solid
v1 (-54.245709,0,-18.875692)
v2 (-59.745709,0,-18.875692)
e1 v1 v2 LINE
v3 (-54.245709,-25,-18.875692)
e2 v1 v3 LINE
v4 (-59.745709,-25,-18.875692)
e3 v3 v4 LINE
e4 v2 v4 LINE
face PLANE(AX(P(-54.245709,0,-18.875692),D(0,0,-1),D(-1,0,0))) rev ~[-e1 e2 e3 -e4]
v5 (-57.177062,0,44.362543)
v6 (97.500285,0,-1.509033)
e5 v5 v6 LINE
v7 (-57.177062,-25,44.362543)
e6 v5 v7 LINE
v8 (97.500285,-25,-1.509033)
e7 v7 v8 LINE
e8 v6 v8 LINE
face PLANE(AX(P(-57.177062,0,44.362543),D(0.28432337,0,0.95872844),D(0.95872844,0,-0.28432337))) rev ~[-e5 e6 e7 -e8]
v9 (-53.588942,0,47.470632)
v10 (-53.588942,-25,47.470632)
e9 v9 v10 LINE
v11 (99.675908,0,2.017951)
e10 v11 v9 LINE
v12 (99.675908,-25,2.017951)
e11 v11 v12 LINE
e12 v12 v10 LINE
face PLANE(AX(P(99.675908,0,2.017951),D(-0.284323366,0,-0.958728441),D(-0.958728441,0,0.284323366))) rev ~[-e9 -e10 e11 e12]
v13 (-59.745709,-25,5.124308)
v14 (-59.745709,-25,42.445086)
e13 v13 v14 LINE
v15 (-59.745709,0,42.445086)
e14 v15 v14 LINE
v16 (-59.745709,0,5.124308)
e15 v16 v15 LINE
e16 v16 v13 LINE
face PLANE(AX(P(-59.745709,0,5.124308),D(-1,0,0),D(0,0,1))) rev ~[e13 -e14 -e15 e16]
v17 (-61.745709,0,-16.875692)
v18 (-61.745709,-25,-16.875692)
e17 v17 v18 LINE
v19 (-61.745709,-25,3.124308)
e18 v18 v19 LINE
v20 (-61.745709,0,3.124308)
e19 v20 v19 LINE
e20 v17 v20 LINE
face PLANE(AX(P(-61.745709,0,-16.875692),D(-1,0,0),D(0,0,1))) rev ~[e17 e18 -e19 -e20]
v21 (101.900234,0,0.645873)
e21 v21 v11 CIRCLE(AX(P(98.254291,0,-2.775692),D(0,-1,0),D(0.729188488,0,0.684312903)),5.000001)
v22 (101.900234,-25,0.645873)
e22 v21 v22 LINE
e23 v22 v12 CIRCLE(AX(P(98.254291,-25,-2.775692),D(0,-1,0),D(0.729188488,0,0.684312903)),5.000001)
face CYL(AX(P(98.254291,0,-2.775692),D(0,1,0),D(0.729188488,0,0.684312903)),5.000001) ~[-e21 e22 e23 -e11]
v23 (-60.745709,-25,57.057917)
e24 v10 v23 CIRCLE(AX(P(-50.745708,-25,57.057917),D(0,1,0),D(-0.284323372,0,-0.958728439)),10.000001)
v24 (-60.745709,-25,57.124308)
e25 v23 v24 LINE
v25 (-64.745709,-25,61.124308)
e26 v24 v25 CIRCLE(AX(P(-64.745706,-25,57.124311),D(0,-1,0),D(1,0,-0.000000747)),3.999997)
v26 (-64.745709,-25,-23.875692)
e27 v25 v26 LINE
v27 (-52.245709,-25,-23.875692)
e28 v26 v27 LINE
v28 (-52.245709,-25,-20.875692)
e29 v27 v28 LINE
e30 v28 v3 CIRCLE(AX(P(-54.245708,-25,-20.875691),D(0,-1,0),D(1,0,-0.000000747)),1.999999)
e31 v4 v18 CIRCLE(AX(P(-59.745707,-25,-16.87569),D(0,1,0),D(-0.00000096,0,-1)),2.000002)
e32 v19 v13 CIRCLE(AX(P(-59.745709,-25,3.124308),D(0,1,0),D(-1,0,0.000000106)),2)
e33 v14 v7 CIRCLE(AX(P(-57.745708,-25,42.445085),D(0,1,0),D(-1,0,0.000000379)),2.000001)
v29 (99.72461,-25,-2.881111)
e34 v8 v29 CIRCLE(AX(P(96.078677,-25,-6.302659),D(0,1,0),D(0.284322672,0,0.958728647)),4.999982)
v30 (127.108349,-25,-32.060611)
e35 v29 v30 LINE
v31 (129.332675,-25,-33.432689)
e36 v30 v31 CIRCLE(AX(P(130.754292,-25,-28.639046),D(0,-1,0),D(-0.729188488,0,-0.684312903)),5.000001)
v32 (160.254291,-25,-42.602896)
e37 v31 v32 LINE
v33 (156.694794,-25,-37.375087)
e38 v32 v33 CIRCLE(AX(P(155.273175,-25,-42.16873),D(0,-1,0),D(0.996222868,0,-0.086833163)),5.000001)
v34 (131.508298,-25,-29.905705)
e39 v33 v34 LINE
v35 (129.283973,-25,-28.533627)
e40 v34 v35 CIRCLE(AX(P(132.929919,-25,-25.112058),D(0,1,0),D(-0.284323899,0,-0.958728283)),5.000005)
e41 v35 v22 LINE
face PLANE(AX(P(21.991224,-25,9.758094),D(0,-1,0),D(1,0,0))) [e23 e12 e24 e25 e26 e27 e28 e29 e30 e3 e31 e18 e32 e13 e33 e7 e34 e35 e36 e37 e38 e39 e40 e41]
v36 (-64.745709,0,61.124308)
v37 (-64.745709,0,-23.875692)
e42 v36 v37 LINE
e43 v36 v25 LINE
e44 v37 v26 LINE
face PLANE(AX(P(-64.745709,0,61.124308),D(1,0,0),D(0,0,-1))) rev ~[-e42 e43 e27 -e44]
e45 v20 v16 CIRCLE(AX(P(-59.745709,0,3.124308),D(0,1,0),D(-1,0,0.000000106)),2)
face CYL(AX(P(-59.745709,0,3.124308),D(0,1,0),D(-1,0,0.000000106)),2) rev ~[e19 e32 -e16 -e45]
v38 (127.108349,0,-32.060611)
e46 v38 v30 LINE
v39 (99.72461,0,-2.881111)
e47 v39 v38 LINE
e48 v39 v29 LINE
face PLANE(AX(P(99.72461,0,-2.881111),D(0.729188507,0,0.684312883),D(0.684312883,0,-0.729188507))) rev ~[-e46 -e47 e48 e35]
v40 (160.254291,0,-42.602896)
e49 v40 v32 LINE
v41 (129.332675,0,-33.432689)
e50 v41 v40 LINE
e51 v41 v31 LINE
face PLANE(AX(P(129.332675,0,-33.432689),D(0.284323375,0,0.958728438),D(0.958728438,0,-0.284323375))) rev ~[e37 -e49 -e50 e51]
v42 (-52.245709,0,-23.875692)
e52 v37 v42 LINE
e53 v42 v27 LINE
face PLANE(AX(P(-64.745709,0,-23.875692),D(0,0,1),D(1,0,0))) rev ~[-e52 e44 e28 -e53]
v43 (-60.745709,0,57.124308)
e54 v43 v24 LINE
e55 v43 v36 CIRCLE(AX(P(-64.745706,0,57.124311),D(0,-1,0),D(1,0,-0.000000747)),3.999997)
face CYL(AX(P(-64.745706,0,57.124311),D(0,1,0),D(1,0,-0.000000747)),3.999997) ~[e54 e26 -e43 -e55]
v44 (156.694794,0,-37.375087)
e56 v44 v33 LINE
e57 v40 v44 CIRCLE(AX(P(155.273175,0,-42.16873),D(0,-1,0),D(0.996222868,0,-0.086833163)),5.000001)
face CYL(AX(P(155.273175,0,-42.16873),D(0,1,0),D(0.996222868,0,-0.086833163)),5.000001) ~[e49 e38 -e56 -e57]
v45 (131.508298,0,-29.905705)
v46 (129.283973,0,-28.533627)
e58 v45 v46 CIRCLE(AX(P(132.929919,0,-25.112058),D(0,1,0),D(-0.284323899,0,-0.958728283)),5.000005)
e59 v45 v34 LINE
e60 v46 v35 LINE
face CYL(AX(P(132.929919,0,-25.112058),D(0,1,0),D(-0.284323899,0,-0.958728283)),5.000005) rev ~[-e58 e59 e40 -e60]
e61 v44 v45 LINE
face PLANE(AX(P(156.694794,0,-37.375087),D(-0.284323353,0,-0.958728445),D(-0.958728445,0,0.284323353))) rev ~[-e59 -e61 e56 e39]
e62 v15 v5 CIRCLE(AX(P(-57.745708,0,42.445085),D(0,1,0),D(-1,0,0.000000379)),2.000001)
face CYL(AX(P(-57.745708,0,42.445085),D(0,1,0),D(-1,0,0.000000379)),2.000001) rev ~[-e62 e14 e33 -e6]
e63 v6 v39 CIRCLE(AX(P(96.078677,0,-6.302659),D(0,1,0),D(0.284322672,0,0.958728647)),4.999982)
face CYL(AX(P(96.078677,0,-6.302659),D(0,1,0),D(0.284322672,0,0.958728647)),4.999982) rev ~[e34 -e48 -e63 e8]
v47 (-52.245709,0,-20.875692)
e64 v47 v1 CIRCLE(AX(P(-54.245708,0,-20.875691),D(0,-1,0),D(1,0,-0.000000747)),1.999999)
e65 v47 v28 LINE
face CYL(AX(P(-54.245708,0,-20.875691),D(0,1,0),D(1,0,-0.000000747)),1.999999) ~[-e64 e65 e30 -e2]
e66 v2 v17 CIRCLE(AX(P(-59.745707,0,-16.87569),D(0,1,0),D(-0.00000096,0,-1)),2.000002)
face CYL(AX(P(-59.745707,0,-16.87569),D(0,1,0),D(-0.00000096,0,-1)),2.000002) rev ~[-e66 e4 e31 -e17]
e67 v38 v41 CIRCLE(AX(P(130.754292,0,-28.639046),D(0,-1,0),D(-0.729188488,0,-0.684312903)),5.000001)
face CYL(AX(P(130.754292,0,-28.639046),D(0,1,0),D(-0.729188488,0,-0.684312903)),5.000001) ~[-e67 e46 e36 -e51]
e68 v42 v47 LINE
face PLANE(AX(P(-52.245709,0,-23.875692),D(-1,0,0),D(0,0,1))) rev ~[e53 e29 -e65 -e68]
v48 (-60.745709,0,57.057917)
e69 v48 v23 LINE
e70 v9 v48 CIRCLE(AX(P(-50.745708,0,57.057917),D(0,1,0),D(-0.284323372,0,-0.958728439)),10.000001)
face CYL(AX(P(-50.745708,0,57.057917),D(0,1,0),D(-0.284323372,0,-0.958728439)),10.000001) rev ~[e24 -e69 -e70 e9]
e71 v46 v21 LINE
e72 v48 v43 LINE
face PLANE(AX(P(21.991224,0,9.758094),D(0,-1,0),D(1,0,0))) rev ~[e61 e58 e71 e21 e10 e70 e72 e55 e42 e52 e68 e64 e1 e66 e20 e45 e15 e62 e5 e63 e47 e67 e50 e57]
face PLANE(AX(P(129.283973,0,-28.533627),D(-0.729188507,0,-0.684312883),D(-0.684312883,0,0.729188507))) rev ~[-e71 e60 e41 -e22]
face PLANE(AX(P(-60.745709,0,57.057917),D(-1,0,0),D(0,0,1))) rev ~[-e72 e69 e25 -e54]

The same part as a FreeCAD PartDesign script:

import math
import FreeCAD as App
import Part
import Sketcher

V = App.Vector

doc = App.newDocument("Part")
params = doc.addObject("Spreadsheet::Sheet", "Params")
for row, (alias, value) in enumerate([
    ("sketch1_radius", "1.999999 mm"),
    ("sketch1_radius2", "2.000002 mm"),
    ("sketch1_radius3", "5.000001 mm"),
    ("sketch1_radius4", "10.000001 mm"),
    ("sketch1_height", "85 mm"),
    ("pad1_length", "25 mm"),
], start=1):
    params.set(f"A{row}", alias)
    params.set(f"B{row}", "=" + value)
    params.setAlias(f"B{row}", alias)

body = doc.addObject("PartDesign::Body", "Body")

# Sketch on XZ plane
sketch1 = body.newObject("Sketcher::SketchObject", "Sketch")
sketch1.AttachmentSupport = (doc.getObject("XZ_Plane"), [""])
sketch1.MapMode = "FlatFace"
sketch1.addGeometry(Part.LineSegment(V(-64.75, 61.12, 0), V(-64.75, -23.88, 0)), False)
sketch1.addGeometry(Part.LineSegment(V(-64.75, -23.88, 0), V(-52.25, -23.88, 0)), False)
sketch1.addGeometry(Part.LineSegment(V(-52.25, -23.88, 0), V(-52.25, -20.88, 0)), False)
sketch1.addGeometry(Part.ArcOfCircle(Part.Circle(V(-54.25, -20.88, 0), V(0, 0, 1), 2), math.radians(0), math.radians(90)), False)
sketch1.addGeometry(Part.LineSegment(V(-54.25, -18.88, 0), V(-59.75, -18.88, 0)), False)
sketch1.addGeometry(Part.ArcOfCircle(Part.Circle(V(-59.75, -16.88, 0), V(0, 0, 1), 2), math.radians(-180), math.radians(-90)), False)
sketch1.addGeometry(Part.LineSegment(V(-61.75, -16.88, 0), V(-61.75, 3.12, 0)), False)
sketch1.addGeometry(Part.ArcOfCircle(Part.Circle(V(-59.75, 3.12, 0), V(0, 0, 1), 2), math.radians(90), math.radians(180)), False)
sketch1.addGeometry(Part.LineSegment(V(-59.75, 5.12, 0), V(-59.75, 42.45, 0)), False)
sketch1.addGeometry(Part.ArcOfCircle(Part.Circle(V(-57.75, 42.45, 0), V(0, 0, 1), 2), math.radians(73), math.radians(180)), False)
sketch1.addGeometry(Part.LineSegment(V(-57.18, 44.36, 0), V(97.5, -1.51, 0)), False)
sketch1.addGeometry(Part.ArcOfCircle(Part.Circle(V(96.08, -6.3, 0), V(0, 0, 1), 5), math.radians(43), math.radians(73)), False)
sketch1.addGeometry(Part.LineSegment(V(99.72, -2.88, 0), V(127.11, -32.06, 0)), False)
sketch1.addGeometry(Part.ArcOfCircle(Part.Circle(V(130.75, -28.64, 0), V(0, 0, 1), 5), math.radians(-137), math.radians(-107)), False)
sketch1.addGeometry(Part.LineSegment(V(129.33, -33.43, 0), V(160.25, -42.6, 0)), False)
sketch1.addGeometry(Part.ArcOfCircle(Part.Circle(V(155.27, -42.17, 0), V(0, 0, 1), 5), math.radians(-5), math.radians(73)), False)
sketch1.addGeometry(Part.LineSegment(V(156.69, -37.38, 0), V(131.51, -29.91, 0)), False)
sketch1.addGeometry(Part.ArcOfCircle(Part.Circle(V(132.93, -25.11, 0), V(0, 0, 1), 5), math.radians(-137), math.radians(-107)), False)
sketch1.addGeometry(Part.LineSegment(V(129.28, -28.53, 0), V(101.9, 0.65, 0)), False)
sketch1.addGeometry(Part.ArcOfCircle(Part.Circle(V(98.25, -2.78, 0), V(0, 0, 1), 5), math.radians(43), math.radians(73)), False)
sketch1.addGeometry(Part.LineSegment(V(99.68, 2.02, 0), V(-53.59, 47.47, 0)), False)
sketch1.addGeometry(Part.ArcOfCircle(Part.Circle(V(-50.75, 57.06, 0), V(0, 0, 1), 10), math.radians(-180), math.radians(-107)), False)
sketch1.addGeometry(Part.LineSegment(V(-60.75, 57.06, 0), V(-60.75, 57.12, 0)), False)
sketch1.addGeometry(Part.ArcOfCircle(Part.Circle(V(-64.75, 57.12, 0), V(0, 0, 1), 4), math.radians(0), math.radians(90)), False)
sketch1.addConstraint(Sketcher.Constraint("Coincident", 0, 2, 1, 1))
sketch1.addConstraint(Sketcher.Constraint("Coincident", 1, 2, 2, 1))
sketch1.addConstraint(Sketcher.Constraint("Tangent", 2, 2, 3, 1))
sketch1.addConstraint(Sketcher.Constraint("Tangent", 3, 2, 4, 1))
sketch1.addConstraint(Sketcher.Constraint("Tangent", 4, 2, 5, 2))
sketch1.addConstraint(Sketcher.Constraint("Tangent", 5, 1, 6, 1))
sketch1.addConstraint(Sketcher.Constraint("Tangent", 6, 2, 7, 2))
sketch1.addConstraint(Sketcher.Constraint("Coincident", 7, 1, 8, 1))
sketch1.addConstraint(Sketcher.Constraint("Tangent", 8, 2, 9, 2))
sketch1.addConstraint(Sketcher.Constraint("Tangent", 9, 1, 10, 1))
sketch1.addConstraint(Sketcher.Constraint("Tangent", 10, 2, 11, 2))
sketch1.addConstraint(Sketcher.Constraint("Tangent", 11, 1, 12, 1))
sketch1.addConstraint(Sketcher.Constraint("Tangent", 12, 2, 13, 1))
sketch1.addConstraint(Sketcher.Constraint("Tangent", 13, 2, 14, 1))
sketch1.addConstraint(Sketcher.Constraint("Coincident", 14, 2, 15, 1))
sketch1.addConstraint(Sketcher.Constraint("Tangent", 15, 2, 16, 1))
sketch1.addConstraint(Sketcher.Constraint("Tangent", 16, 2, 17, 2))
sketch1.addConstraint(Sketcher.Constraint("Tangent", 17, 1, 18, 1))
sketch1.addConstraint(Sketcher.Constraint("Tangent", 18, 2, 19, 1))
sketch1.addConstraint(Sketcher.Constraint("Tangent", 19, 2, 20, 1))
sketch1.addConstraint(Sketcher.Constraint("Tangent", 20, 2, 21, 2))
sketch1.addConstraint(Sketcher.Constraint("Tangent", 21, 1, 22, 1))
sketch1.addConstraint(Sketcher.Constraint("Tangent", 22, 2, 23, 1))
sketch1.addConstraint(Sketcher.Constraint("Coincident", 23, 2, 0, 1))
sketch1.addConstraint(Sketcher.Constraint("Vertical", 0))
sketch1.addConstraint(Sketcher.Constraint("Horizontal", 1))
sketch1.addConstraint(Sketcher.Constraint("Vertical", 2))
sketch1.addConstraint(Sketcher.Constraint("Horizontal", 4))
sketch1.addConstraint(Sketcher.Constraint("Vertical", 6))
sketch1.addConstraint(Sketcher.Constraint("Vertical", 8))
sketch1.addConstraint(Sketcher.Constraint("Vertical", 22))
sketch1.addConstraint(Sketcher.Constraint("Equal", 5, 7))
sketch1.addConstraint(Sketcher.Constraint("Equal", 7, 9))
sketch1.addConstraint(Sketcher.Constraint("Equal", 13, 15))
sketch1.addConstraint(Sketcher.Constraint("Equal", 15, 19))
sketch1.addConstraint(Sketcher.Constraint("Parallel", 10, 14))
sketch1.addConstraint(Sketcher.Constraint("Parallel", 14, 16))
sketch1.addConstraint(Sketcher.Constraint("Parallel", 12, 18))
sketch1.addConstraint(Sketcher.Constraint("Parallel", 16, 20))
sketch1.addConstraint(Sketcher.Constraint("Vertical", 4, 2, 7, 1))
sketch1.addConstraint(Sketcher.Constraint("Equal", 12, 18))
sketch1.addConstraint(Sketcher.Constraint("Radius", 3, 1.999999))
sketch1.addConstraint(Sketcher.Constraint("Radius", 5, 2.000002))
sketch1.addConstraint(Sketcher.Constraint("Radius", 13, 5.000001))
sketch1.addConstraint(Sketcher.Constraint("Radius", 21, 10.000001))
sketch1.addConstraint(Sketcher.Constraint("DistanceY", 0, 2, 0, 1, 85.0))
sketch1.addConstraint(Sketcher.Constraint("DistanceY", 2, 1, 2, 2, 3.0))
sketch1.addConstraint(Sketcher.Constraint("DistanceY", 6, 1, 6, 2, 20.0))
sketch1.addConstraint(Sketcher.Constraint("DistanceX", 1, 1, 1, 2, 12.5))
sketch1.addConstraint(Sketcher.Constraint("DistanceX", 4, 2, 4, 1, 5.5))
sketch1.addConstraint(Sketcher.Constraint("DistanceX", 3, 3, 13, 3, 185.0))
sketch1.addConstraint(Sketcher.Constraint("DistanceX", 9, 3, 21, 3, 7.0))
sketch1.addConstraint(Sketcher.Constraint("DistanceX", 23, 3, 21, 3, 13.999998))
sketch1.addConstraint(Sketcher.Constraint("DistanceX", 19, 3, 13, 3, 32.500002))
sketch1.addConstraint(Sketcher.Constraint("DistanceY", 3, 3, 19, 3, 18.099998))
sketch1.addConstraint(Sketcher.Constraint("DistanceX", 13, 3, 14, 2, 29.499999))
sketch1.addConstraint(Sketcher.Constraint("Radius", 11, 4.999982))
sketch1.addConstraint(Sketcher.Constraint("Radius", 17, 5.000005))
sketch1.addConstraint(Sketcher.Constraint("Distance", 12, 40.016401))
sketch1.addConstraint(Sketcher.Constraint("DistanceY", 8, 1, 8, 2, 37.320778))
sketch1.addConstraint(Sketcher.Constraint("DistanceY", 22, 1, 22, 2, 0.066391))
sketch1.addConstraint(Sketcher.Constraint("DistanceX", -1, 1, 16, 2, 131.508298))
sketch1.addConstraint(Sketcher.Constraint("DistanceX", 11, 3, 15, 3, 59.194498))
sketch1.addConstraint(Sketcher.Constraint("DistanceY", 3, 3, -1, 1, 20.875691))
sketch1.setExpression("Constraints[41]", "Params.sketch1_radius")
sketch1.setExpression("Constraints[42]", "Params.sketch1_radius2")
sketch1.setExpression("Constraints[43]", "Params.sketch1_radius3")
sketch1.setExpression("Constraints[44]", "Params.sketch1_radius4")
sketch1.setExpression("Constraints[45]", "Params.sketch1_height")
pad1 = body.newObject("PartDesign::Pad", "Pad")
pad1.Profile = sketch1
pad1.setExpression("Length", "Params.pad1_length")

doc.recompute()
